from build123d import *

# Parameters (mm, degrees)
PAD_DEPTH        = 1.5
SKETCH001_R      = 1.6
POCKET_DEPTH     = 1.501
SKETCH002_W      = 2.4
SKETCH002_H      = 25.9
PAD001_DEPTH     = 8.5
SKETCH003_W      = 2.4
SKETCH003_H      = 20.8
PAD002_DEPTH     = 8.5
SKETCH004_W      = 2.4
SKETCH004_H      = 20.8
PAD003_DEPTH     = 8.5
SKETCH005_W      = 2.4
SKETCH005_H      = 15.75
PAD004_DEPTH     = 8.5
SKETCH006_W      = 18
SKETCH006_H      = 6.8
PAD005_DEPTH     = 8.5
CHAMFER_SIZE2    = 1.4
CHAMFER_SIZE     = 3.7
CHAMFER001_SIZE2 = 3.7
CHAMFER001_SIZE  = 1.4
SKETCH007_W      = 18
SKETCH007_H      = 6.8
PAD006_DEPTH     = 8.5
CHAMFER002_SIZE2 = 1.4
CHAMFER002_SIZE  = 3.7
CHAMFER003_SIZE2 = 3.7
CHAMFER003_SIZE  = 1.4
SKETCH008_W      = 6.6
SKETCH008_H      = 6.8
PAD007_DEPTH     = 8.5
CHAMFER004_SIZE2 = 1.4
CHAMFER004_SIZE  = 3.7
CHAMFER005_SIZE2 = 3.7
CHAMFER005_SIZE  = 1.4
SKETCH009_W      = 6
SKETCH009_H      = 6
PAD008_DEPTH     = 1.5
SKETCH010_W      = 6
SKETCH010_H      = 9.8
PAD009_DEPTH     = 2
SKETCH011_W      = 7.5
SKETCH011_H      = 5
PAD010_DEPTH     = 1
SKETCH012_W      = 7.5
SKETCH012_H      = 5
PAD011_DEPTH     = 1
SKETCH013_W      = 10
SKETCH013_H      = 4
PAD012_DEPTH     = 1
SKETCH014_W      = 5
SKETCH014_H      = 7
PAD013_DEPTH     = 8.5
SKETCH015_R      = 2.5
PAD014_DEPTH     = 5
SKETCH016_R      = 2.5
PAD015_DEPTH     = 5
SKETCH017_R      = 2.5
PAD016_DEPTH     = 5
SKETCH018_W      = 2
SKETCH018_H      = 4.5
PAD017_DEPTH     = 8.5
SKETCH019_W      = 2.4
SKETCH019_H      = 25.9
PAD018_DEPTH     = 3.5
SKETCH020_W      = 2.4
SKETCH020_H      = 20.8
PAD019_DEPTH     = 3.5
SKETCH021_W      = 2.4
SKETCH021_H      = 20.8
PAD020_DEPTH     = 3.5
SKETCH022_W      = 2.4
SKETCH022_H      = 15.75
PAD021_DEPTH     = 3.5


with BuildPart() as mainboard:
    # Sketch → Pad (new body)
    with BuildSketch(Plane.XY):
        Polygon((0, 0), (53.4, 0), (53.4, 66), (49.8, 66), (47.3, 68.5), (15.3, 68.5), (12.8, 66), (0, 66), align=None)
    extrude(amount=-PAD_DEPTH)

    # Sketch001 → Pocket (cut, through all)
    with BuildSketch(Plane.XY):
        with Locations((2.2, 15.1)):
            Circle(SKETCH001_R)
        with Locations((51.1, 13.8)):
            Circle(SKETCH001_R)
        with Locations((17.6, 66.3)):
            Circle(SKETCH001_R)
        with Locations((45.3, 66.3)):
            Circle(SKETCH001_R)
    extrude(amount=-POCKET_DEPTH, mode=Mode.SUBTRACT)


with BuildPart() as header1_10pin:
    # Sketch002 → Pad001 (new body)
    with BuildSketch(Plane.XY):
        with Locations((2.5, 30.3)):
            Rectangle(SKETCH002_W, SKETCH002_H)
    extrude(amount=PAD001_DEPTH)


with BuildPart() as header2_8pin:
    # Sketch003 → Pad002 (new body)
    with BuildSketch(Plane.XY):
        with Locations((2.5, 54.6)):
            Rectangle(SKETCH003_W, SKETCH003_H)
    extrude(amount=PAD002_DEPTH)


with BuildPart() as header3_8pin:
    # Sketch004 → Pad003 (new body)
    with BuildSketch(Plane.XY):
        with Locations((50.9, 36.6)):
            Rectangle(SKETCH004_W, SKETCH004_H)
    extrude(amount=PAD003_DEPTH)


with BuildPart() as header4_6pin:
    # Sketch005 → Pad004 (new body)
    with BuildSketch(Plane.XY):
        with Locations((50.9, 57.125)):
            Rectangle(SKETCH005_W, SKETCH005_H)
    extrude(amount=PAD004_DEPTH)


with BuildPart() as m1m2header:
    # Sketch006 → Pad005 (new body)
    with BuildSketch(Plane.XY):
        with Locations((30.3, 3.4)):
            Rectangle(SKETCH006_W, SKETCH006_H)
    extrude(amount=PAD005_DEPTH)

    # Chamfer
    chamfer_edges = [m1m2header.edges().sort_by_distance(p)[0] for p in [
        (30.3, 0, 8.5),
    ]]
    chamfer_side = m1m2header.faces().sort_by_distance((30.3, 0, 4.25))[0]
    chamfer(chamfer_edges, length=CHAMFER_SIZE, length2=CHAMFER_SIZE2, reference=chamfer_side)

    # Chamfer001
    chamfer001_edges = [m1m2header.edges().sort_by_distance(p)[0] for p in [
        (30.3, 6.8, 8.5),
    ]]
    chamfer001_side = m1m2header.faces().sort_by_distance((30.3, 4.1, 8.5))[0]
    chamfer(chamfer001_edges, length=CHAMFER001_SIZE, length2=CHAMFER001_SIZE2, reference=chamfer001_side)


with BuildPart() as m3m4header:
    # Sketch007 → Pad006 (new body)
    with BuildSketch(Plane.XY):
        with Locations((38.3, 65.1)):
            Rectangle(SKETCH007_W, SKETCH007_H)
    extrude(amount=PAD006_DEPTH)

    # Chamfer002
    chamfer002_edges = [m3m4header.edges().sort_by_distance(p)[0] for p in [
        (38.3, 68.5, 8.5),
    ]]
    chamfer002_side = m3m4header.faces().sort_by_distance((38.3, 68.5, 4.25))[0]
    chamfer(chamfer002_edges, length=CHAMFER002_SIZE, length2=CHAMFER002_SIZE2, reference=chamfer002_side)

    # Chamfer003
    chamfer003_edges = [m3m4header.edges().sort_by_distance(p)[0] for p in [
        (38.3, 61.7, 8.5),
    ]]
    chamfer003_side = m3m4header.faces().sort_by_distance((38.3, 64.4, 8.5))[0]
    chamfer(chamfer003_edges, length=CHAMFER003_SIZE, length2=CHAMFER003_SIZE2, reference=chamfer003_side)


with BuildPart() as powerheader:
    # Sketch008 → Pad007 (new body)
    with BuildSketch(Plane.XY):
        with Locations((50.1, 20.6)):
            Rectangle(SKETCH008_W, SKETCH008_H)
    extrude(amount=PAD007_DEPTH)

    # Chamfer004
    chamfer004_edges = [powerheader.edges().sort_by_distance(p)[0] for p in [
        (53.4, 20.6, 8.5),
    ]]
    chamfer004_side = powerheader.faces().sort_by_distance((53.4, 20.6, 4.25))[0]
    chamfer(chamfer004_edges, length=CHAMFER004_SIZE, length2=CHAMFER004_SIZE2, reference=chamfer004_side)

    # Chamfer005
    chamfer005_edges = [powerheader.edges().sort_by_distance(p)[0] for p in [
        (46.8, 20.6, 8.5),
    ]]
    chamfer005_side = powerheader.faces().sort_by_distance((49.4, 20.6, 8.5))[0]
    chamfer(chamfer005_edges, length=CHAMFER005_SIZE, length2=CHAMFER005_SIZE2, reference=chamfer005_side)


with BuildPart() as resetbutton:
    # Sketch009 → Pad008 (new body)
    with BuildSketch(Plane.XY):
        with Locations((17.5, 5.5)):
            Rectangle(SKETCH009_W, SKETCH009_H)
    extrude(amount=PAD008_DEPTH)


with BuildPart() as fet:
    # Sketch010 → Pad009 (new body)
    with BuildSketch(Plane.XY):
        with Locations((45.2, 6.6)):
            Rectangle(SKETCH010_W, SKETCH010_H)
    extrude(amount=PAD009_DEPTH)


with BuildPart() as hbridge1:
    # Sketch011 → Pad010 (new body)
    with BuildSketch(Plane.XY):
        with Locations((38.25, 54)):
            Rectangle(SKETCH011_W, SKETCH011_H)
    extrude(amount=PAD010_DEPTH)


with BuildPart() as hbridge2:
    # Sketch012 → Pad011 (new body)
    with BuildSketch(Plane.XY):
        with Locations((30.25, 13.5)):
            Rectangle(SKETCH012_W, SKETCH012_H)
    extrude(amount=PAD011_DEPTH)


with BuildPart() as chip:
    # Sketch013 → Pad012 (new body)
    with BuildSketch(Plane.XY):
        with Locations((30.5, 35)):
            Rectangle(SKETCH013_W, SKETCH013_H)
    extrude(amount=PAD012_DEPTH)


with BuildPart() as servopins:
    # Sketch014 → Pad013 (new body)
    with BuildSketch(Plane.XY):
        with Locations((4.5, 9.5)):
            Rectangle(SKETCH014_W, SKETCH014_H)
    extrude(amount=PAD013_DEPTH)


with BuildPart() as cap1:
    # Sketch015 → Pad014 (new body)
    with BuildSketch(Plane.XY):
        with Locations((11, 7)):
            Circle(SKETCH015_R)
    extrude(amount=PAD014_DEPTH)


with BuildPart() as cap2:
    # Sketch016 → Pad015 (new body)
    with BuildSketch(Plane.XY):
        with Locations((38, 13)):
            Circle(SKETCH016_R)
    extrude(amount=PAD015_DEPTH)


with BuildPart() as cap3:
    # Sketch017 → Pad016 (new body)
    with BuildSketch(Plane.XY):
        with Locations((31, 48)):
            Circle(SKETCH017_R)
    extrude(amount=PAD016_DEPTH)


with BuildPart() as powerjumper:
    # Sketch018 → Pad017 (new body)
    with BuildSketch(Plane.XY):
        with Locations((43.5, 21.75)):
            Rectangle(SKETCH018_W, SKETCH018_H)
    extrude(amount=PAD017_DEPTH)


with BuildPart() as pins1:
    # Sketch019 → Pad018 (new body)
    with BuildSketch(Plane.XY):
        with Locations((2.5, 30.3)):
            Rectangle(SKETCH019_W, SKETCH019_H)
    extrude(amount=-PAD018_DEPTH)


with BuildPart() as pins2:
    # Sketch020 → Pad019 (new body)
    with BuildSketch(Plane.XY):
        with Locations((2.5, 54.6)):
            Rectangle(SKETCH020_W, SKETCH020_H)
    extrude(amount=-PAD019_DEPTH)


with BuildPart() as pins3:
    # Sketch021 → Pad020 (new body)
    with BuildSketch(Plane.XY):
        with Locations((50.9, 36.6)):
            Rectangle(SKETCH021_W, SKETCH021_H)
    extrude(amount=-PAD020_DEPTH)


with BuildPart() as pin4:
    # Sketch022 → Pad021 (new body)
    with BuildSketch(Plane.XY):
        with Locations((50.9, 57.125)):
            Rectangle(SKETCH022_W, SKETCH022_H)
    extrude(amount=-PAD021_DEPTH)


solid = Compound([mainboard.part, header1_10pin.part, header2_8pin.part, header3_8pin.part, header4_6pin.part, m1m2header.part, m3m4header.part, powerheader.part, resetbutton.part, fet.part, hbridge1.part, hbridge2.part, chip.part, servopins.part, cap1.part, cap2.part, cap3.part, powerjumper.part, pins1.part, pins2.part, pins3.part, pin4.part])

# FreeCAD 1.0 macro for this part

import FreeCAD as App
import Part
import Sketcher
from FreeCAD import Vector
Q = App.Units.Quantity


def edges_at(feature, points):
    """Names of the edges that pass closest to the given points."""
    edges = feature.Shape.Edges
    near = lambda p: min(range(len(edges)), key=lambda i: edges[i].distToShape(Part.Vertex(*p))[0])
    return sorted({f"Edge{near(p) + 1}" for p in points})

doc = App.newDocument("Part")
params = doc.addObject("Spreadsheet::Sheet", "Params")
for row, (alias, value) in enumerate([
    ("sketch1_width", "32 mm"),
    ("sketch1_height", "66 mm"),
    ("sketch1_width2", "53.4 mm"),
    ("sketch1_width3", "3.6 mm"),
    ("sketch1_width4", "12.8 mm"),
    ("pad1_length", "1.5 mm"),
    ("sketch2_diameter", "3.2 mm"),
    ("sketch3_width", "2.4 mm"),
    ("sketch3_height", "25.9 mm"),
    ("pad2_length", "8.5 mm"),
    ("sketch4_width", "2.4 mm"),
    ("sketch4_height", "20.8 mm"),
    ("pad3_length", "8.5 mm"),
    ("sketch5_width", "2.4 mm"),
    ("sketch5_height", "20.8 mm"),
    ("pad4_length", "8.5 mm"),
    ("sketch6_width", "2.4 mm"),
    ("sketch6_height", "15.75 mm"),
    ("pad5_length", "8.5 mm"),
    ("sketch7_width", "18 mm"),
    ("sketch7_height", "6.8 mm"),
    ("pad6_length", "8.5 mm"),
    ("chamfer_size", "3.7 mm"),
    ("chamfer_size2", "1.4 mm"),
    ("chamfer2_size", "1.4 mm"),
    ("chamfer2_size2", "3.7 mm"),
    ("sketch8_width", "18 mm"),
    ("sketch8_height", "6.8 mm"),
    ("pad7_length", "8.5 mm"),
    ("chamfer3_size", "3.7 mm"),
    ("chamfer3_size2", "1.4 mm"),
    ("chamfer4_size", "1.4 mm"),
    ("chamfer4_size2", "3.7 mm"),
    ("sketch9_width", "6.6 mm"),
    ("sketch9_height", "6.8 mm"),
    ("pad8_length", "8.5 mm"),
    ("chamfer5_size", "3.7 mm"),
    ("chamfer5_size2", "1.4 mm"),
    ("chamfer6_size", "1.4 mm"),
    ("chamfer6_size2", "3.7 mm"),
    ("sketch10_width", "6 mm"),
    ("pad9_length", "1.5 mm"),
    ("sketch11_width", "6 mm"),
    ("sketch11_height", "9.8 mm"),
    ("pad10_length", "2 mm"),
    ("sketch12_height", "5 mm"),
    ("sketch12_width", "7.5 mm"),
    ("pad11_length", "1 mm"),
    ("sketch13_height", "5 mm"),
    ("sketch13_width", "7.5 mm"),
    ("pad12_length", "1 mm"),
    ("sketch14_width", "10 mm"),
    ("sketch14_height", "4 mm"),
    ("pad13_length", "1 mm"),
    ("sketch15_width", "5 mm"),
    ("sketch15_height", "7 mm"),
    ("pad14_length", "8.5 mm"),
    ("sketch16_diameter", "5 mm"),
    ("pad15_length", "5 mm"),
    ("sketch17_diameter", "5 mm"),
    ("pad16_length", "5 mm"),
    ("sketch18_diameter", "5 mm"),
    ("pad17_length", "5 mm"),
    ("sketch19_width", "2 mm"),
    ("sketch19_height", "4.5 mm"),
    ("pad18_length", "8.5 mm"),
    ("sketch20_width", "2.4 mm"),
    ("sketch20_height", "25.9 mm"),
    ("pad19_length", "3.5 mm"),
    ("sketch21_width", "2.4 mm"),
    ("sketch21_height", "20.8 mm"),
    ("pad20_length", "3.5 mm"),
    ("sketch22_width", "2.4 mm"),
    ("sketch22_height", "20.8 mm"),
    ("pad21_length", "3.5 mm"),
    ("sketch23_width", "2.4 mm"),
    ("sketch23_height", "15.75 mm"),
    ("pad22_length", "3.5 mm"),
], start=1):
    params.set(f"A{row}", alias)
    params.set(f"B{row}", "=" + value)
    params.setAlias(f"B{row}", alias)

body = doc.addObject("PartDesign::Body", "Body")

# Sketch on XY plane
sketch1 = body.newObject("Sketcher::SketchObject", "Sketch")
sketch1.AttachmentSupport = (doc.getObject("XY_Plane"), [""])
sketch1.MapMode = "FlatFace"
sketch1.addGeometry([
    Part.LineSegment(Vector(0, 0, 0), Vector(53.4, 0, 0)),  # 0
    Part.LineSegment(Vector(53.4, 0, 0), Vector(53.4, 66, 0)),  # 1
    Part.LineSegment(Vector(53.4, 66, 0), Vector(49.8, 66, 0)),  # 2
    Part.LineSegment(Vector(49.8, 66, 0), Vector(47.3, 68.5, 0)),  # 3
    Part.LineSegment(Vector(47.3, 68.5, 0), Vector(15.3, 68.5, 0)),  # 4
    Part.LineSegment(Vector(15.3, 68.5, 0), Vector(12.8, 66, 0)),  # 5
    Part.LineSegment(Vector(12.8, 66, 0), Vector(0, 66, 0)),  # 6
    Part.LineSegment(Vector(0, 66, 0), Vector(0, 0, 0)),  # 7
], False)
sketch1.addConstraint([
    Sketcher.Constraint("Coincident", 0, 2, 1, 1),
    Sketcher.Constraint("Coincident", 1, 2, 2, 1),
    Sketcher.Constraint("Coincident", 2, 2, 3, 1),
    Sketcher.Constraint("Coincident", 3, 2, 4, 1),
    Sketcher.Constraint("Coincident", 4, 2, 5, 1),
    Sketcher.Constraint("Coincident", 5, 2, 6, 1),
    Sketcher.Constraint("Coincident", 6, 2, 7, 1),
    Sketcher.Constraint("Coincident", 7, 2, 0, 1),
    Sketcher.Constraint("Horizontal", 0),
    Sketcher.Constraint("Vertical", 1),
    Sketcher.Constraint("Horizontal", 2),
    Sketcher.Constraint("Horizontal", 4),
    Sketcher.Constraint("Horizontal", 6),
    Sketcher.Constraint("Vertical", 7),
    Sketcher.Constraint("Coincident", 7, 2, -1, 1),
    Sketcher.Constraint("Perpendicular", 3, 5),
    Sketcher.Constraint("Horizontal", 2, 2, 5, 2),
    Sketcher.Constraint("Equal", 3, 5),
    Sketcher.Constraint("DistanceX", 4, 2, 4, 1, Q("32 mm")),
    Sketcher.Constraint("DistanceY", 1, 1, 1, 2, Q("66 mm")),
    Sketcher.Constraint("DistanceX", 0, 1, 0, 2, Q("53.4 mm")),
    Sketcher.Constraint("DistanceX", 2, 2, 2, 1, Q("3.6 mm")),
    Sketcher.Constraint("DistanceX", 6, 2, 6, 1, Q("12.8 mm")),
])
sketch1.setExpression("Constraints[18]", "Params.sketch1_width")
sketch1.setExpression("Constraints[19]", "Params.sketch1_height")
sketch1.setExpression("Constraints[20]", "Params.sketch1_width2")
sketch1.setExpression("Constraints[21]", "Params.sketch1_width3")
sketch1.setExpression("Constraints[22]", "Params.sketch1_width4")
pad1 = body.newObject("PartDesign::Pad", "Pad")
pad1.Profile = sketch1
pad1.setExpression("Length", "Params.pad1_length")
pad1.Reversed = True

# Sketch on XY plane
sketch2 = body.newObject("Sketcher::SketchObject", "Sketch001")
sketch2.AttachmentSupport = (doc.getObject("XY_Plane"), [""])
sketch2.MapMode = "FlatFace"
sketch2.addGeometry([
    Part.Circle(Vector(2.2, 15.1, 0), Vector(0, 0, 1), 1.6),
    Part.Circle(Vector(51.1, 13.8, 0), Vector(0, 0, 1), 1.6),
    Part.Circle(Vector(17.6, 66.3, 0), Vector(0, 0, 1), 1.6),
    Part.Circle(Vector(45.3, 66.3, 0), Vector(0, 0, 1), 1.6),
], False)
sketch2.addConstraint([
    Sketcher.Constraint("Equal", 0, 1),
    Sketcher.Constraint("Equal", 1, 2),
    Sketcher.Constraint("Equal", 2, 3),
    Sketcher.Constraint("Horizontal", 2, 3, 3, 3),
    Sketcher.Constraint("Diameter", 0, Q("3.2 mm")),
    Sketcher.Constraint("DistanceX", -1, 1, 0, 3, Q("2.2 mm")),
    Sketcher.Constraint("DistanceY", -1, 1, 0, 3, Q("15.1 mm")),
    Sketcher.Constraint("DistanceX", -1, 1, 1, 3, Q("51.1 mm")),
    Sketcher.Constraint("DistanceY", -1, 1, 1, 3, Q("13.8 mm")),
    Sketcher.Constraint("DistanceX", -1, 1, 2, 3, Q("17.6 mm")),
    Sketcher.Constraint("DistanceY", -1, 1, 2, 3, Q("66.3 mm")),
    Sketcher.Constraint("DistanceX", -1, 1, 3, 3, Q("45.3 mm")),
])
sketch2.setExpression("Constraints[4]", "Params.sketch2_diameter")
pocket1 = body.newObject("PartDesign::Pocket", "Pocket")
pocket1.Profile = sketch2
pocket1.Type = "ThroughAll"
body2 = doc.addObject("PartDesign::Body", "Body001")

# Sketch on XY plane
sketch3 = body2.newObject("Sketcher::SketchObject", "Sketch002")
sketch3.AttachmentSupport = (doc.getObject("XY_Plane001"), [""])
sketch3.MapMode = "FlatFace"
sketch3.addGeometry([
    Part.LineSegment(Vector(1.3, 43.2, 0), Vector(1.3, 17.4, 0)),
    Part.LineSegment(Vector(1.3, 17.4, 0), Vector(3.7, 17.4, 0)),
    Part.LineSegment(Vector(3.7, 17.4, 0), Vector(3.7, 43.2, 0)),
    Part.LineSegment(Vector(3.7, 43.2, 0), Vector(1.3, 43.2, 0)),
], False)
sketch3.addConstraint([
    Sketcher.Constraint("Coincident", 0, 2, 1, 1),
    Sketcher.Constraint("Coincident", 1, 2, 2, 1),
    Sketcher.Constraint("Coincident", 2, 2, 3, 1),
    Sketcher.Constraint("Coincident", 3, 2, 0, 1),
    Sketcher.Constraint("Vertical", 0),
    Sketcher.Constraint("Horizontal", 1),
    Sketcher.Constraint("Vertical", 2),
    Sketcher.Constraint("Horizontal", 3),
    Sketcher.Constraint("DistanceX", 1, 1, 1, 2, Q("2.4 mm")),
    Sketcher.Constraint("DistanceY", 0, 2, 0, 1, Q("25.9 mm")),
    Sketcher.Constraint("DistanceX", -1, 1, 0, 2, Q("1.3 mm")),
    Sketcher.Constraint("DistanceY", -1, 1, 0, 2, Q("17.35 mm")),
])
sketch3.setExpression("Constraints[8]", "Params.sketch3_width")
sketch3.setExpression("Constraints[9]", "Params.sketch3_height")
pad2 = body2.newObject("PartDesign::Pad", "Pad001")
pad2.Profile = sketch3
pad2.setExpression("Length", "Params.pad2_length")
body3 = doc.addObject("PartDesign::Body", "Body002")

# Sketch on XY plane
sketch4 = body3.newObject("Sketcher::SketchObject", "Sketch003")
sketch4.AttachmentSupport = (doc.getObject("XY_Plane002"), [""])
sketch4.MapMode = "FlatFace"
sketch4.addGeometry([
    Part.LineSegment(Vector(1.3, 65, 0), Vector(1.3, 44.2, 0)),
    Part.LineSegment(Vector(1.3, 44.2, 0), Vector(3.7, 44.2, 0)),
    Part.LineSegment(Vector(3.7, 44.2, 0), Vector(3.7, 65, 0)),
    Part.LineSegment(Vector(3.7, 65, 0), Vector(1.3, 65, 0)),
], False)
sketch4.addConstraint([
    Sketcher.Constraint("Coincident", 0, 2, 1, 1),
    Sketcher.Constraint("Coincident", 1, 2, 2, 1),
    Sketcher.Constraint("Coincident", 2, 2, 3, 1),
    Sketcher.Constraint("Coincident", 3, 2, 0, 1),
    Sketcher.Constraint("Vertical", 0),
    Sketcher.Constraint("Horizontal", 1),
    Sketcher.Constraint("Vertical", 2),
    Sketcher.Constraint("Horizontal", 3),
    Sketcher.Constraint("DistanceX", 1, 1, 1, 2, Q("2.4 mm")),
    Sketcher.Constraint("DistanceY", 0, 2, 0, 1, Q("20.8 mm")),
    Sketcher.Constraint("DistanceY", -1, 1, 2, 2, Q("65 mm")),
    Sketcher.Constraint("DistanceX", -1, 1, 0, 2, Q("1.3 mm")),
])
sketch4.setExpression("Constraints[8]", "Params.sketch4_width")
sketch4.setExpression("Constraints[9]", "Params.sketch4_height")
pad3 = body3.newObject("PartDesign::Pad", "Pad002")
pad3.Profile = sketch4
pad3.setExpression("Length", "Params.pad3_length")
body4 = doc.addObject("PartDesign::Body", "Body003")

# Sketch on XY plane
sketch5 = body4.newObject("Sketcher::SketchObject", "Sketch004")
sketch5.AttachmentSupport = (doc.getObject("XY_Plane003"), [""])
sketch5.MapMode = "FlatFace"
sketch5.addGeometry([
    Part.LineSegment(Vector(49.7, 47, 0), Vector(49.7, 26.2, 0)),
    Part.LineSegment(Vector(49.7, 26.2, 0), Vector(52.1, 26.2, 0)),
    Part.LineSegment(Vector(52.1, 26.2, 0), Vector(52.1, 47, 0)),
    Part.LineSegment(Vector(52.1, 47, 0), Vector(49.7, 47, 0)),
], False)
sketch5.addConstraint([
    Sketcher.Constraint("Coincident", 0, 2, 1, 1),
    Sketcher.Constraint("Coincident", 1, 2, 2, 1),
    Sketcher.Constraint("Coincident", 2, 2, 3, 1),
    Sketcher.Constraint("Coincident", 3, 2, 0, 1),
    Sketcher.Constraint("Vertical", 0),
    Sketcher.Constraint("Horizontal", 1),
    Sketcher.Constraint("Vertical", 2),
    Sketcher.Constraint("Horizontal", 3),
    Sketcher.Constraint("DistanceX", 1, 1, 1, 2, Q("2.4 mm")),
    Sketcher.Constraint("DistanceY", 0, 2, 0, 1, Q("20.8 mm")),
    Sketcher.Constraint("DistanceY", -1, 1, 2, 2, Q("47 mm")),
    Sketcher.Constraint("DistanceX", -1, 1, 0, 2, Q("49.7 mm")),
])
sketch5.setExpression("Constraints[8]", "Params.sketch5_width")
sketch5.setExpression("Constraints[9]", "Params.sketch5_height")
pad4 = body4.newObject("PartDesign::Pad", "Pad003")
pad4.Profile = sketch5
pad4.setExpression("Length", "Params.pad4_length")
body5 = doc.addObject("PartDesign::Body", "Body004")

# Sketch on XY plane
sketch6 = body5.newObject("Sketcher::SketchObject", "Sketch005")
sketch6.AttachmentSupport = (doc.getObject("XY_Plane004"), [""])
sketch6.MapMode = "FlatFace"
sketch6.addGeometry([
    Part.LineSegment(Vector(49.7, 65, 0), Vector(49.7, 49.2, 0)),
    Part.LineSegment(Vector(49.7, 49.2, 0), Vector(52.1, 49.2, 0)),
    Part.LineSegment(Vector(52.1, 49.2, 0), Vector(52.1, 65, 0)),
    Part.LineSegment(Vector(52.1, 65, 0), Vector(49.7, 65, 0)),
], False)
sketch6.addConstraint([
    Sketcher.Constraint("Coincident", 0, 2, 1, 1),
    Sketcher.Constraint("Coincident", 1, 2, 2, 1),
    Sketcher.Constraint("Coincident", 2, 2, 3, 1),
    Sketcher.Constraint("Coincident", 3, 2, 0, 1),
    Sketcher.Constraint("Vertical", 0),
    Sketcher.Constraint("Horizontal", 1),
    Sketcher.Constraint("Vertical", 2),
    Sketcher.Constraint("Horizontal", 3),
    Sketcher.Constraint("DistanceX", 1, 1, 1, 2, Q("2.4 mm")),
    Sketcher.Constraint("DistanceY", -1, 1, 2, 2, Q("65 mm")),
    Sketcher.Constraint("DistanceY", 0, 2, 0, 1, Q("15.75 mm")),
    Sketcher.Constraint("DistanceX", -1, 1, 0, 2, Q("49.7 mm")),
])
sketch6.setExpression("Constraints[8]", "Params.sketch6_width")
sketch6.setExpression("Constraints[10]", "Params.sketch6_height")
pad5 = body5.newObject("PartDesign::Pad", "Pad004")
pad5.Profile = sketch6
pad5.setExpression("Length", "Params.pad5_length")
body6 = doc.addObject("PartDesign::Body", "Body005")

# Sketch on XY plane
sketch7 = body6.newObject("Sketcher::SketchObject", "Sketch006")
sketch7.AttachmentSupport = (doc.getObject("XY_Plane005"), [""])
sketch7.MapMode = "FlatFace"
sketch7.addGeometry([
    Part.LineSegment(Vector(21, 7, 0), Vector(21, 0, 0)),
    Part.LineSegment(Vector(21, 0, 0), Vector(39, 0, 0)),
    Part.LineSegment(Vector(39, 0, 0), Vector(39, 7, 0)),
    Part.LineSegment(Vector(39, 7, 0), Vector(21, 7, 0)),
], False)
sketch7.addConstraint([
    Sketcher.Constraint("Coincident", 0, 2, 1, 1),
    Sketcher.Constraint("Coincident", 1, 2, 2, 1),
    Sketcher.Constraint("Coincident", 2, 2, 3, 1),
    Sketcher.Constraint("Coincident", 3, 2, 0, 1),
    Sketcher.Constraint("Vertical", 0),
    Sketcher.Constraint("Horizontal", 1),
    Sketcher.Constraint("Vertical", 2),
    Sketcher.Constraint("Horizontal", 3),
    Sketcher.Constraint("PointOnObject", 0, 2, -1),
    Sketcher.Constraint("DistanceX", 1, 1, 1, 2, Q("18 mm")),
    Sketcher.Constraint("DistanceY", 0, 2, 0, 1, Q("6.8 mm")),
    Sketcher.Constraint("DistanceX", -1, 1, 0, 2, Q("21.3 mm")),
])
sketch7.setExpression("Constraints[9]", "Params.sketch7_width")
sketch7.setExpression("Constraints[10]", "Params.sketch7_height")
pad6 = body6.newObject("PartDesign::Pad", "Pad005")
pad6.Profile = sketch7
pad6.setExpression("Length", "Params.pad6_length")
doc.recompute()

chamfer = body6.newObject("PartDesign::Chamfer", "Chamfer")
chamfer.Base = (pad6, edges_at(pad6, [(30.3, 0, 8.5)]))
chamfer.ChamferType = "Two distances"
chamfer.setExpression("Size", "Params.chamfer_size")
chamfer.setExpression("Size2", "Params.chamfer_size2")
doc.recompute()

chamfer2 = body6.newObject("PartDesign::Chamfer", "Chamfer001")
chamfer2.Base = (chamfer, edges_at(chamfer, [(30.3, 6.8, 8.5)]))
chamfer2.ChamferType = "Two distances"
chamfer2.setExpression("Size", "Params.chamfer2_size")
chamfer2.setExpression("Size2", "Params.chamfer2_size2")
body7 = doc.addObject("PartDesign::Body", "Body006")

# Sketch on XY plane
sketch8 = body7.newObject("Sketcher::SketchObject", "Sketch007")
sketch8.AttachmentSupport = (doc.getObject("XY_Plane006"), [""])
sketch8.MapMode = "FlatFace"
sketch8.addGeometry([
    Part.LineSegment(Vector(29, 68, 0), Vector(29, 62, 0)),
    Part.LineSegment(Vector(29, 62, 0), Vector(47, 62, 0)),
    Part.LineSegment(Vector(47, 62, 0), Vector(47, 68, 0)),
    Part.LineSegment(Vector(47, 68, 0), Vector(29, 68, 0)),
], False)
sketch8.addConstraint([
    Sketcher.Constraint("Coincident", 0, 2, 1, 1),
    Sketcher.Constraint("Coincident", 1, 2, 2, 1),
    Sketcher.Constraint("Coincident", 2, 2, 3, 1),
    Sketcher.Constraint("Coincident", 3, 2, 0, 1),
    Sketcher.Constraint("Vertical", 0),
    Sketcher.Constraint("Horizontal", 1),
    Sketcher.Constraint("Vertical", 2),
    Sketcher.Constraint("Horizontal", 3),
    Sketcher.Constraint("DistanceX", 1, 1, 1, 2, Q("18 mm")),
    Sketcher.Constraint("DistanceY", 0, 2, 0, 1, Q("6.8 mm")),
    Sketcher.Constraint("DistanceX", -1, 1, 0, 2, Q("29.3 mm")),
    Sketcher.Constraint("DistanceY", -1, 1, 0, 2, Q("61.7 mm")),
])
sketch8.setExpression("Constraints[8]", "Params.sketch8_width")
sketch8.setExpression("Constraints[9]", "Params.sketch8_height")
pad7 = body7.newObject("PartDesign::Pad", "Pad006")
pad7.Profile = sketch8
pad7.setExpression("Length", "Params.pad7_length")
doc.recompute()

chamfer3 = body7.newObject("PartDesign::Chamfer", "Chamfer002")
chamfer3.Base = (pad7, edges_at(pad7, [(38.3, 68.5, 8.5)]))
chamfer3.ChamferType = "Two distances"
chamfer3.setExpression("Size", "Params.chamfer3_size")
chamfer3.setExpression("Size2", "Params.chamfer3_size2")
doc.recompute()

chamfer4 = body7.newObject("PartDesign::Chamfer", "Chamfer003")
chamfer4.Base = (chamfer3, edges_at(chamfer3, [(38.3, 61.7, 8.5)]))
chamfer4.ChamferType = "Two distances"
chamfer4.setExpression("Size", "Params.chamfer4_size")
chamfer4.setExpression("Size2", "Params.chamfer4_size2")
body8 = doc.addObject("PartDesign::Body", "Body007")

# Sketch on XY plane
sketch9 = body8.newObject("Sketcher::SketchObject", "Sketch008")
sketch9.AttachmentSupport = (doc.getObject("XY_Plane007"), [""])
sketch9.MapMode = "FlatFace"
sketch9.addGeometry([
    Part.LineSegment(Vector(47, 24, 0), Vector(47, 17, 0)),
    Part.LineSegment(Vector(47, 17, 0), Vector(53, 17, 0)),
    Part.LineSegment(Vector(53, 17, 0), Vector(53, 24, 0)),
    Part.LineSegment(Vector(53, 24, 0), Vector(47, 24, 0)),
], False)
sketch9.addConstraint([
    Sketcher.Constraint("Coincident", 0, 2, 1, 1),
    Sketcher.Constraint("Coincident", 1, 2, 2, 1),
    Sketcher.Constraint("Coincident", 2, 2, 3, 1),
    Sketcher.Constraint("Coincident", 3, 2, 0, 1),
    Sketcher.Constraint("Vertical", 0),
    Sketcher.Constraint("Horizontal", 1),
    Sketcher.Constraint("Vertical", 2),
    Sketcher.Constraint("Horizontal", 3),
    Sketcher.Constraint("DistanceX", 1, 1, 1, 2, Q("6.6 mm")),
    Sketcher.Constraint("DistanceY", 0, 2, 0, 1, Q("6.8 mm")),
    Sketcher.Constraint("DistanceY", -1, 1, 2, 2, Q("24 mm")),
    Sketcher.Constraint("DistanceX", -1, 1, 0, 2, Q("46.8 mm")),
])
sketch9.setExpression("Constraints[8]", "Params.sketch9_width")
sketch9.setExpression("Constraints[9]", "Params.sketch9_height")
pad8 = body8.newObject("PartDesign::Pad", "Pad007")
pad8.Profile = sketch9
pad8.setExpression("Length", "Params.pad8_length")
doc.recompute()

chamfer5 = body8.newObject("PartDesign::Chamfer", "Chamfer004")
chamfer5.Base = (pad8, edges_at(pad8, [(53.4, 20.6, 8.5)]))
chamfer5.ChamferType = "Two distances"
chamfer5.setExpression("Size", "Params.chamfer5_size")
chamfer5.setExpression("Size2", "Params.chamfer5_size2")
doc.recompute()

chamfer6 = body8.newObject("PartDesign::Chamfer", "Chamfer005")
chamfer6.Base = (chamfer5, edges_at(chamfer5, [(46.8, 20.6, 8.5)]))
chamfer6.ChamferType = "Two distances"
chamfer6.setExpression("Size", "Params.chamfer6_size")
chamfer6.setExpression("Size2", "Params.chamfer6_size2")
body9 = doc.addObject("PartDesign::Body", "Body008")

# Sketch on XY plane
sketch10 = body9.newObject("Sketcher::SketchObject", "Sketch009")
sketch10.AttachmentSupport = (doc.getObject("XY_Plane008"), [""])
sketch10.MapMode = "FlatFace"
sketch10.addGeometry([
    Part.LineSegment(Vector(14, 8, 0), Vector(14, 2, 0)),
    Part.LineSegment(Vector(14, 2, 0), Vector(20, 2, 0)),
    Part.LineSegment(Vector(20, 2, 0), Vector(20, 8, 0)),
    Part.LineSegment(Vector(20, 8, 0), Vector(14, 8, 0)),
], False)
sketch10.addConstraint([
    Sketcher.Constraint("Coincident", 0, 2, 1, 1),
    Sketcher.Constraint("Coincident", 1, 2, 2, 1),
    Sketcher.Constraint("Coincident", 2, 2, 3, 1),
    Sketcher.Constraint("Coincident", 3, 2, 0, 1),
    Sketcher.Constraint("Vertical", 0),
    Sketcher.Constraint("Horizontal", 1),
    Sketcher.Constraint("Vertical", 2),
    Sketcher.Constraint("Horizontal", 3),
    Sketcher.Constraint("Equal", 3, 0),
    Sketcher.Constraint("DistanceX", 1, 1, 1, 2, Q("6 mm")),
    Sketcher.Constraint("DistanceX", -1, 1, 0, 2, Q("14.5 mm")),
    Sketcher.Constraint("DistanceY", -1, 1, 0, 2, Q("2.5 mm")),
])
sketch10.setExpression("Constraints[9]", "Params.sketch10_width")
pad9 = body9.newObject("PartDesign::Pad", "Pad008")
pad9.Profile = sketch10
pad9.setExpression("Length", "Params.pad9_length")
body10 = doc.addObject("PartDesign::Body", "Body009")

# Sketch on XY plane
sketch11 = body10.newObject("Sketcher::SketchObject", "Sketch010")
sketch11.AttachmentSupport = (doc.getObject("XY_Plane009"), [""])
sketch11.MapMode = "FlatFace"
sketch11.addGeometry([
    Part.LineSegment(Vector(42, 12, 0), Vector(42, 2, 0)),
    Part.LineSegment(Vector(42, 2, 0), Vector(48, 2, 0)),
    Part.LineSegment(Vector(48, 2, 0), Vector(48, 12, 0)),
    Part.LineSegment(Vector(48, 12, 0), Vector(42, 12, 0)),
], False)
sketch11.addConstraint([
    Sketcher.Constraint("Coincident", 0, 2, 1, 1),
    Sketcher.Constraint("Coincident", 1, 2, 2, 1),
    Sketcher.Constraint("Coincident", 2, 2, 3, 1),
    Sketcher.Constraint("Coincident", 3, 2, 0, 1),
    Sketcher.Constraint("Vertical", 0),
    Sketcher.Constraint("Horizontal", 1),
    Sketcher.Constraint("Vertical", 2),
    Sketcher.Constraint("Horizontal", 3),
    Sketcher.Constraint("DistanceX", 1, 1, 1, 2, Q("6 mm")),
    Sketcher.Constraint("DistanceY", 0, 2, 0, 1, Q("9.8 mm")),
    Sketcher.Constraint("DistanceX", -1, 1, 0, 2, Q("42.2 mm")),
    Sketcher.Constraint("DistanceY", -1, 1, 0, 2, Q("1.7 mm")),
])
sketch11.setExpression("Constraints[8]", "Params.sketch11_width")
sketch11.setExpression("Constraints[9]", "Params.sketch11_height")
pad10 = body10.newObject("PartDesign::Pad", "Pad009")
pad10.Profile = sketch11
pad10.setExpression("Length", "Params.pad10_length")
body11 = doc.addObject("PartDesign::Body", "Body010")

# Sketch on XY plane
sketch12 = body11.newObject("Sketcher::SketchObject", "Sketch011")
sketch12.AttachmentSupport = (doc.getObject("XY_Plane010"), [""])
sketch12.MapMode = "FlatFace"
sketch12.addGeometry([
    Part.LineSegment(Vector(34, 56, 0), Vector(34, 52, 0)),
    Part.LineSegment(Vector(34, 52, 0), Vector(42, 52, 0)),
    Part.LineSegment(Vector(42, 52, 0), Vector(42, 56, 0)),
    Part.LineSegment(Vector(42, 56, 0), Vector(34, 56, 0)),
], False)
sketch12.addConstraint([
    Sketcher.Constraint("Coincident", 0, 2, 1, 1),
    Sketcher.Constraint("Coincident", 1, 2, 2, 1),
    Sketcher.Constraint("Coincident", 2, 2, 3, 1),
    Sketcher.Constraint("Coincident", 3, 2, 0, 1),
    Sketcher.Constraint("Vertical", 0),
    Sketcher.Constraint("Horizontal", 1),
    Sketcher.Constraint("Vertical", 2),
    Sketcher.Constraint("Horizontal", 3),
    Sketcher.Constraint("DistanceY", 0, 2, 0, 1, Q("5 mm")),
    Sketcher.Constraint("DistanceX", 1, 1, 1, 2, Q("7.5 mm")),
    Sketcher.Constraint("DistanceX", -1, 1, 1, 2, Q("42 mm")),
    Sketcher.Constraint("DistanceY", -1, 1, 0, 2, Q("51.5 mm")),
])
sketch12.setExpression("Constraints[8]", "Params.sketch12_height")
sketch12.setExpression("Constraints[9]", "Params.sketch12_width")
pad11 = body11.newObject("PartDesign::Pad", "Pad010")
pad11.Profile = sketch12
pad11.setExpression("Length", "Params.pad11_length")
body12 = doc.addObject("PartDesign::Body", "Body011")

# Sketch on XY plane
sketch13 = body12.newObject("Sketcher::SketchObject", "Sketch012")
sketch13.AttachmentSupport = (doc.getObject("XY_Plane011"), [""])
sketch13.MapMode = "FlatFace"
sketch13.addGeometry([
    Part.LineSegment(Vector(26, 16, 0), Vector(26, 11, 0)),
    Part.LineSegment(Vector(26, 11, 0), Vector(34, 11, 0)),
    Part.LineSegment(Vector(34, 11, 0), Vector(34, 16, 0)),
    Part.LineSegment(Vector(34, 16, 0), Vector(26, 16, 0)),
], False)
sketch13.addConstraint([
    Sketcher.Constraint("Coincident", 0, 2, 1, 1),
    Sketcher.Constraint("Coincident", 1, 2, 2, 1),
    Sketcher.Constraint("Coincident", 2, 2, 3, 1),
    Sketcher.Constraint("Coincident", 3, 2, 0, 1),
    Sketcher.Constraint("Vertical", 0),
    Sketcher.Constraint("Horizontal", 1),
    Sketcher.Constraint("Vertical", 2),
    Sketcher.Constraint("Horizontal", 3),
    Sketcher.Constraint("DistanceY", 0, 2, 0, 1, Q("5 mm")),
    Sketcher.Constraint("DistanceX", 1, 1, 1, 2, Q("7.5 mm")),
    Sketcher.Constraint("DistanceY", -1, 1, 0, 2, Q("11 mm")),
    Sketcher.Constraint("DistanceX", -1, 1, 1, 2, Q("34 mm")),
])
sketch13.setExpression("Constraints[8]", "Params.sketch13_height")
sketch13.setExpression("Constraints[9]", "Params.sketch13_width")
pad12 = body12.newObject("PartDesign::Pad", "Pad011")
pad12.Profile = sketch13
pad12.setExpression("Length", "Params.pad12_length")
body13 = doc.addObject("PartDesign::Body", "Body012")

# Sketch on XY plane
sketch14 = body13.newObject("Sketcher::SketchObject", "Sketch013")
sketch14.AttachmentSupport = (doc.getObject("XY_Plane012"), [""])
sketch14.MapMode = "FlatFace"
sketch14.addGeometry([
    Part.LineSegment(Vector(25.5, 37, 0), Vector(25.5, 33, 0)),
    Part.LineSegment(Vector(25.5, 33, 0), Vector(35.5, 33, 0)),
    Part.LineSegment(Vector(35.5, 33, 0), Vector(35.5, 37, 0)),
    Part.LineSegment(Vector(35.5, 37, 0), Vector(25.5, 37, 0)),
], False)
sketch14.addConstraint([
    Sketcher.Constraint("Coincident", 0, 2, 1, 1),
    Sketcher.Constraint("Coincident", 1, 2, 2, 1),
    Sketcher.Constraint("Coincident", 2, 2, 3, 1),
    Sketcher.Constraint("Coincident", 3, 2, 0, 1),
    Sketcher.Constraint("Vertical", 0),
    Sketcher.Constraint("Horizontal", 1),
    Sketcher.Constraint("Vertical", 2),
    Sketcher.Constraint("Horizontal", 3),
    Sketcher.Constraint("DistanceX", 1, 1, 1, 2, Q("10 mm")),
    Sketcher.Constraint("DistanceY", 0, 2, 0, 1, Q("4 mm")),
    Sketcher.Constraint("DistanceY", -1, 1, 0, 2, Q("33 mm")),
    Sketcher.Constraint("DistanceX", -1, 1, 0, 2, Q("25.5 mm")),
])
sketch14.setExpression("Constraints[8]", "Params.sketch14_width")
sketch14.setExpression("Constraints[9]", "Params.sketch14_height")
pad13 = body13.newObject("PartDesign::Pad", "Pad012")
pad13.Profile = sketch14
pad13.setExpression("Length", "Params.pad13_length")
body14 = doc.addObject("PartDesign::Body", "Body013")

# Sketch on XY plane
sketch15 = body14.newObject("Sketcher::SketchObject", "Sketch014")
sketch15.AttachmentSupport = (doc.getObject("XY_Plane013"), [""])
sketch15.MapMode = "FlatFace"
sketch15.addGeometry([
    Part.LineSegment(Vector(2, 13, 0), Vector(2, 6, 0)),
    Part.LineSegment(Vector(2, 6, 0), Vector(7, 6, 0)),
    Part.LineSegment(Vector(7, 6, 0), Vector(7, 13, 0)),
    Part.LineSegment(Vector(7, 13, 0), Vector(2, 13, 0)),
], False)
sketch15.addConstraint([
    Sketcher.Constraint("Coincident", 0, 2, 1, 1),
    Sketcher.Constraint("Coincident", 1, 2, 2, 1),
    Sketcher.Constraint("Coincident", 2, 2, 3, 1),
    Sketcher.Constraint("Coincident", 3, 2, 0, 1),
    Sketcher.Constraint("Vertical", 0),
    Sketcher.Constraint("Horizontal", 1),
    Sketcher.Constraint("Vertical", 2),
    Sketcher.Constraint("Horizontal", 3),
    Sketcher.Constraint("DistanceX", 1, 1, 1, 2, Q("5 mm")),
    Sketcher.Constraint("DistanceY", 0, 2, 0, 1, Q("7 mm")),
    Sketcher.Constraint("DistanceX", -1, 1, 0, 2, Q("2 mm")),
    Sketcher.Constraint("DistanceY", -1, 1, 0, 2, Q("6 mm")),
])
sketch15.setExpression("Constraints[8]", "Params.sketch15_width")
sketch15.setExpression("Constraints[9]", "Params.sketch15_height")
pad14 = body14.newObject("PartDesign::Pad", "Pad013")
pad14.Profile = sketch15
pad14.setExpression("Length", "Params.pad14_length")
body15 = doc.addObject("PartDesign::Body", "Body014")

# Sketch on XY plane
sketch16 = body15.newObject("Sketcher::SketchObject", "Sketch015")
sketch16.AttachmentSupport = (doc.getObject("XY_Plane014"), [""])
sketch16.MapMode = "FlatFace"
sketch16.addGeometry(Part.Circle(Vector(11, 7, 0), Vector(0, 0, 1), 2.5), False)
sketch16.addConstraint([
    Sketcher.Constraint("Diameter", 0, Q("5 mm")),
    Sketcher.Constraint("DistanceX", -1, 1, 0, 3, Q("11 mm")),
    Sketcher.Constraint("DistanceY", -1, 1, 0, 3, Q("7 mm")),
])
sketch16.setExpression("Constraints[0]", "Params.sketch16_diameter")
pad15 = body15.newObject("PartDesign::Pad", "Pad014")
pad15.Profile = sketch16
pad15.setExpression("Length", "Params.pad15_length")
body16 = doc.addObject("PartDesign::Body", "Body015")

# Sketch on XY plane
sketch17 = body16.newObject("Sketcher::SketchObject", "Sketch016")
sketch17.AttachmentSupport = (doc.getObject("XY_Plane015"), [""])
sketch17.MapMode = "FlatFace"
sketch17.addGeometry(Part.Circle(Vector(38, 13, 0), Vector(0, 0, 1), 2.5), False)
sketch17.addConstraint([
    Sketcher.Constraint("Diameter", 0, Q("5 mm")),
    Sketcher.Constraint("DistanceX", -1, 1, 0, 3, Q("38 mm")),
    Sketcher.Constraint("DistanceY", -1, 1, 0, 3, Q("13 mm")),
])
sketch17.setExpression("Constraints[0]", "Params.sketch17_diameter")
pad16 = body16.newObject("PartDesign::Pad", "Pad015")
pad16.Profile = sketch17
pad16.setExpression("Length", "Params.pad16_length")
body17 = doc.addObject("PartDesign::Body", "Body016")

# Sketch on XY plane
sketch18 = body17.newObject("Sketcher::SketchObject", "Sketch017")
sketch18.AttachmentSupport = (doc.getObject("XY_Plane016"), [""])
sketch18.MapMode = "FlatFace"
sketch18.addGeometry(Part.Circle(Vector(31, 48, 0), Vector(0, 0, 1), 2.5), False)
sketch18.addConstraint([
    Sketcher.Constraint("Diameter", 0, Q("5 mm")),
    Sketcher.Constraint("DistanceX", -1, 1, 0, 3, Q("31 mm")),
    Sketcher.Constraint("DistanceY", -1, 1, 0, 3, Q("48 mm")),
])
sketch18.setExpression("Constraints[0]", "Params.sketch18_diameter")
pad17 = body17.newObject("PartDesign::Pad", "Pad016")
pad17.Profile = sketch18
pad17.setExpression("Length", "Params.pad17_length")
body18 = doc.addObject("PartDesign::Body", "Body017")

# Sketch on XY plane
sketch19 = body18.newObject("Sketcher::SketchObject", "Sketch018")
sketch19.AttachmentSupport = (doc.getObject("XY_Plane017"), [""])
sketch19.MapMode = "FlatFace"
sketch19.addGeometry([
    Part.LineSegment(Vector(42.5, 24, 0), Vector(42.5, 19.5, 0)),
    Part.LineSegment(Vector(42.5, 19.5, 0), Vector(44.5, 19.5, 0)),
    Part.LineSegment(Vector(44.5, 19.5, 0), Vector(44.5, 24, 0)),
    Part.LineSegment(Vector(44.5, 24, 0), Vector(42.5, 24, 0)),
], False)
sketch19.addConstraint([
    Sketcher.Constraint("Coincident", 0, 2, 1, 1),
    Sketcher.Constraint("Coincident", 1, 2, 2, 1),
    Sketcher.Constraint("Coincident", 2, 2, 3, 1),
    Sketcher.Constraint("Coincident", 3, 2, 0, 1),
    Sketcher.Constraint("Vertical", 0),
    Sketcher.Constraint("Horizontal", 1),
    Sketcher.Constraint("Vertical", 2),
    Sketcher.Constraint("Horizontal", 3),
    Sketcher.Constraint("DistanceX", 1, 1, 1, 2, Q("2 mm")),
    Sketcher.Constraint("DistanceY", 0, 2, 0, 1, Q("4.5 mm")),
    Sketcher.Constraint("DistanceY", -1, 1, 2, 2, Q("24 mm")),
    Sketcher.Constraint("DistanceX", -1, 1, 0, 2, Q("42.5 mm")),
])
sketch19.setExpression("Constraints[8]", "Params.sketch19_width")
sketch19.setExpression("Constraints[9]", "Params.sketch19_height")
pad18 = body18.newObject("PartDesign::Pad", "Pad017")
pad18.Profile = sketch19
pad18.setExpression("Length", "Params.pad18_length")
body19 = doc.addObject("PartDesign::Body", "Body018")

# Sketch on XY plane
sketch20 = body19.newObject("Sketcher::SketchObject", "Sketch019")
sketch20.AttachmentSupport = (doc.getObject("XY_Plane018"), [""])
sketch20.MapMode = "FlatFace"
sketch20.addGeometry([
    Part.LineSegment(Vector(1.3, 43.2, 0), Vector(1.3, 17.4, 0)),
    Part.LineSegment(Vector(1.3, 17.4, 0), Vector(3.7, 17.4, 0)),
    Part.LineSegment(Vector(3.7, 17.4, 0), Vector(3.7, 43.2, 0)),
    Part.LineSegment(Vector(3.7, 43.2, 0), Vector(1.3, 43.2, 0)),
], False)
sketch20.addConstraint([
    Sketcher.Constraint("Coincident", 0, 2, 1, 1),
    Sketcher.Constraint("Coincident", 1, 2, 2, 1),
    Sketcher.Constraint("Coincident", 2, 2, 3, 1),
    Sketcher.Constraint("Coincident", 3, 2, 0, 1),
    Sketcher.Constraint("Vertical", 0),
    Sketcher.Constraint("Horizontal", 1),
    Sketcher.Constraint("Vertical", 2),
    Sketcher.Constraint("Horizontal", 3),
    Sketcher.Constraint("DistanceX", 1, 1, 1, 2, Q("2.4 mm")),
    Sketcher.Constraint("DistanceY", 0, 2, 0, 1, Q("25.9 mm")),
    Sketcher.Constraint("DistanceX", -1, 1, 0, 2, Q("1.3 mm")),
    Sketcher.Constraint("DistanceY", -1, 1, 0, 2, Q("17.35 mm")),
])
sketch20.setExpression("Constraints[8]", "Params.sketch20_width")
sketch20.setExpression("Constraints[9]", "Params.sketch20_height")
pad19 = body19.newObject("PartDesign::Pad", "Pad018")
pad19.Profile = sketch20
pad19.setExpression("Length", "Params.pad19_length")
pad19.Reversed = True
body20 = doc.addObject("PartDesign::Body", "Body019")

# Sketch on XY plane
sketch21 = body20.newObject("Sketcher::SketchObject", "Sketch020")
sketch21.AttachmentSupport = (doc.getObject("XY_Plane019"), [""])
sketch21.MapMode = "FlatFace"
sketch21.addGeometry([
    Part.LineSegment(Vector(1.3, 65, 0), Vector(1.3, 44.2, 0)),
    Part.LineSegment(Vector(1.3, 44.2, 0), Vector(3.7, 44.2, 0)),
    Part.LineSegment(Vector(3.7, 44.2, 0), Vector(3.7, 65, 0)),
    Part.LineSegment(Vector(3.7, 65, 0), Vector(1.3, 65, 0)),
], False)
sketch21.addConstraint([
    Sketcher.Constraint("Coincident", 0, 2, 1, 1),
    Sketcher.Constraint("Coincident", 1, 2, 2, 1),
    Sketcher.Constraint("Coincident", 2, 2, 3, 1),
    Sketcher.Constraint("Coincident", 3, 2, 0, 1),
    Sketcher.Constraint("Vertical", 0),
    Sketcher.Constraint("Horizontal", 1),
    Sketcher.Constraint("Vertical", 2),
    Sketcher.Constraint("Horizontal", 3),
    Sketcher.Constraint("DistanceX", 1, 1, 1, 2, Q("2.4 mm")),
    Sketcher.Constraint("DistanceY", 0, 2, 0, 1, Q("20.8 mm")),
    Sketcher.Constraint("DistanceY", -1, 1, 2, 2, Q("65 mm")),
    Sketcher.Constraint("DistanceX", -1, 1, 0, 2, Q("1.3 mm")),
])
sketch21.setExpression("Constraints[8]", "Params.sketch21_width")
sketch21.setExpression("Constraints[9]", "Params.sketch21_height")
pad20 = body20.newObject("PartDesign::Pad", "Pad019")
pad20.Profile = sketch21
pad20.setExpression("Length", "Params.pad20_length")
pad20.Reversed = True
body21 = doc.addObject("PartDesign::Body", "Body020")

# Sketch on XY plane
sketch22 = body21.newObject("Sketcher::SketchObject", "Sketch021")
sketch22.AttachmentSupport = (doc.getObject("XY_Plane020"), [""])
sketch22.MapMode = "FlatFace"
sketch22.addGeometry([
    Part.LineSegment(Vector(49.7, 47, 0), Vector(49.7, 26.2, 0)),
    Part.LineSegment(Vector(49.7, 26.2, 0), Vector(52.1, 26.2, 0)),
    Part.LineSegment(Vector(52.1, 26.2, 0), Vector(52.1, 47, 0)),
    Part.LineSegment(Vector(52.1, 47, 0), Vector(49.7, 47, 0)),
], False)
sketch22.addConstraint([
    Sketcher.Constraint("Coincident", 0, 2, 1, 1),
    Sketcher.Constraint("Coincident", 1, 2, 2, 1),
    Sketcher.Constraint("Coincident", 2, 2, 3, 1),
    Sketcher.Constraint("Coincident", 3, 2, 0, 1),
    Sketcher.Constraint("Vertical", 0),
    Sketcher.Constraint("Horizontal", 1),
    Sketcher.Constraint("Vertical", 2),
    Sketcher.Constraint("Horizontal", 3),
    Sketcher.Constraint("DistanceX", 1, 1, 1, 2, Q("2.4 mm")),
    Sketcher.Constraint("DistanceY", 0, 2, 0, 1, Q("20.8 mm")),
    Sketcher.Constraint("DistanceY", -1, 1, 2, 2, Q("47 mm")),
    Sketcher.Constraint("DistanceX", -1, 1, 0, 2, Q("49.7 mm")),
])
sketch22.setExpression("Constraints[8]", "Params.sketch22_width")
sketch22.setExpression("Constraints[9]", "Params.sketch22_height")
pad21 = body21.newObject("PartDesign::Pad", "Pad020")
pad21.Profile = sketch22
pad21.setExpression("Length", "Params.pad21_length")
pad21.Reversed = True
body22 = doc.addObject("PartDesign::Body", "Body021")

# Sketch on XY plane
sketch23 = body22.newObject("Sketcher::SketchObject", "Sketch022")
sketch23.AttachmentSupport = (doc.getObject("XY_Plane021"), [""])
sketch23.MapMode = "FlatFace"
sketch23.addGeometry([
    Part.LineSegment(Vector(49.7, 65, 0), Vector(49.7, 49.2, 0)),
    Part.LineSegment(Vector(49.7, 49.2, 0), Vector(52.1, 49.2, 0)),
    Part.LineSegment(Vector(52.1, 49.2, 0), Vector(52.1, 65, 0)),
    Part.LineSegment(Vector(52.1, 65, 0), Vector(49.7, 65, 0)),
], False)
sketch23.addConstraint([
    Sketcher.Constraint("Coincident", 0, 2, 1, 1),
    Sketcher.Constraint("Coincident", 1, 2, 2, 1),
    Sketcher.Constraint("Coincident", 2, 2, 3, 1),
    Sketcher.Constraint("Coincident", 3, 2, 0, 1),
    Sketcher.Constraint("Vertical", 0),
    Sketcher.Constraint("Horizontal", 1),
    Sketcher.Constraint("Vertical", 2),
    Sketcher.Constraint("Horizontal", 3),
    Sketcher.Constraint("DistanceX", 1, 1, 1, 2, Q("2.4 mm")),
    Sketcher.Constraint("DistanceY", -1, 1, 2, 2, Q("65 mm")),
    Sketcher.Constraint("DistanceY", 0, 2, 0, 1, Q("15.75 mm")),
    Sketcher.Constraint("DistanceX", -1, 1, 0, 2, Q("49.7 mm")),
])
sketch23.setExpression("Constraints[8]", "Params.sketch23_width")
sketch23.setExpression("Constraints[10]", "Params.sketch23_height")
pad22 = body22.newObject("PartDesign::Pad", "Pad021")
pad22.Profile = sketch23
pad22.setExpression("Length", "Params.pad22_length")
pad22.Reversed = True

doc.recompute()
